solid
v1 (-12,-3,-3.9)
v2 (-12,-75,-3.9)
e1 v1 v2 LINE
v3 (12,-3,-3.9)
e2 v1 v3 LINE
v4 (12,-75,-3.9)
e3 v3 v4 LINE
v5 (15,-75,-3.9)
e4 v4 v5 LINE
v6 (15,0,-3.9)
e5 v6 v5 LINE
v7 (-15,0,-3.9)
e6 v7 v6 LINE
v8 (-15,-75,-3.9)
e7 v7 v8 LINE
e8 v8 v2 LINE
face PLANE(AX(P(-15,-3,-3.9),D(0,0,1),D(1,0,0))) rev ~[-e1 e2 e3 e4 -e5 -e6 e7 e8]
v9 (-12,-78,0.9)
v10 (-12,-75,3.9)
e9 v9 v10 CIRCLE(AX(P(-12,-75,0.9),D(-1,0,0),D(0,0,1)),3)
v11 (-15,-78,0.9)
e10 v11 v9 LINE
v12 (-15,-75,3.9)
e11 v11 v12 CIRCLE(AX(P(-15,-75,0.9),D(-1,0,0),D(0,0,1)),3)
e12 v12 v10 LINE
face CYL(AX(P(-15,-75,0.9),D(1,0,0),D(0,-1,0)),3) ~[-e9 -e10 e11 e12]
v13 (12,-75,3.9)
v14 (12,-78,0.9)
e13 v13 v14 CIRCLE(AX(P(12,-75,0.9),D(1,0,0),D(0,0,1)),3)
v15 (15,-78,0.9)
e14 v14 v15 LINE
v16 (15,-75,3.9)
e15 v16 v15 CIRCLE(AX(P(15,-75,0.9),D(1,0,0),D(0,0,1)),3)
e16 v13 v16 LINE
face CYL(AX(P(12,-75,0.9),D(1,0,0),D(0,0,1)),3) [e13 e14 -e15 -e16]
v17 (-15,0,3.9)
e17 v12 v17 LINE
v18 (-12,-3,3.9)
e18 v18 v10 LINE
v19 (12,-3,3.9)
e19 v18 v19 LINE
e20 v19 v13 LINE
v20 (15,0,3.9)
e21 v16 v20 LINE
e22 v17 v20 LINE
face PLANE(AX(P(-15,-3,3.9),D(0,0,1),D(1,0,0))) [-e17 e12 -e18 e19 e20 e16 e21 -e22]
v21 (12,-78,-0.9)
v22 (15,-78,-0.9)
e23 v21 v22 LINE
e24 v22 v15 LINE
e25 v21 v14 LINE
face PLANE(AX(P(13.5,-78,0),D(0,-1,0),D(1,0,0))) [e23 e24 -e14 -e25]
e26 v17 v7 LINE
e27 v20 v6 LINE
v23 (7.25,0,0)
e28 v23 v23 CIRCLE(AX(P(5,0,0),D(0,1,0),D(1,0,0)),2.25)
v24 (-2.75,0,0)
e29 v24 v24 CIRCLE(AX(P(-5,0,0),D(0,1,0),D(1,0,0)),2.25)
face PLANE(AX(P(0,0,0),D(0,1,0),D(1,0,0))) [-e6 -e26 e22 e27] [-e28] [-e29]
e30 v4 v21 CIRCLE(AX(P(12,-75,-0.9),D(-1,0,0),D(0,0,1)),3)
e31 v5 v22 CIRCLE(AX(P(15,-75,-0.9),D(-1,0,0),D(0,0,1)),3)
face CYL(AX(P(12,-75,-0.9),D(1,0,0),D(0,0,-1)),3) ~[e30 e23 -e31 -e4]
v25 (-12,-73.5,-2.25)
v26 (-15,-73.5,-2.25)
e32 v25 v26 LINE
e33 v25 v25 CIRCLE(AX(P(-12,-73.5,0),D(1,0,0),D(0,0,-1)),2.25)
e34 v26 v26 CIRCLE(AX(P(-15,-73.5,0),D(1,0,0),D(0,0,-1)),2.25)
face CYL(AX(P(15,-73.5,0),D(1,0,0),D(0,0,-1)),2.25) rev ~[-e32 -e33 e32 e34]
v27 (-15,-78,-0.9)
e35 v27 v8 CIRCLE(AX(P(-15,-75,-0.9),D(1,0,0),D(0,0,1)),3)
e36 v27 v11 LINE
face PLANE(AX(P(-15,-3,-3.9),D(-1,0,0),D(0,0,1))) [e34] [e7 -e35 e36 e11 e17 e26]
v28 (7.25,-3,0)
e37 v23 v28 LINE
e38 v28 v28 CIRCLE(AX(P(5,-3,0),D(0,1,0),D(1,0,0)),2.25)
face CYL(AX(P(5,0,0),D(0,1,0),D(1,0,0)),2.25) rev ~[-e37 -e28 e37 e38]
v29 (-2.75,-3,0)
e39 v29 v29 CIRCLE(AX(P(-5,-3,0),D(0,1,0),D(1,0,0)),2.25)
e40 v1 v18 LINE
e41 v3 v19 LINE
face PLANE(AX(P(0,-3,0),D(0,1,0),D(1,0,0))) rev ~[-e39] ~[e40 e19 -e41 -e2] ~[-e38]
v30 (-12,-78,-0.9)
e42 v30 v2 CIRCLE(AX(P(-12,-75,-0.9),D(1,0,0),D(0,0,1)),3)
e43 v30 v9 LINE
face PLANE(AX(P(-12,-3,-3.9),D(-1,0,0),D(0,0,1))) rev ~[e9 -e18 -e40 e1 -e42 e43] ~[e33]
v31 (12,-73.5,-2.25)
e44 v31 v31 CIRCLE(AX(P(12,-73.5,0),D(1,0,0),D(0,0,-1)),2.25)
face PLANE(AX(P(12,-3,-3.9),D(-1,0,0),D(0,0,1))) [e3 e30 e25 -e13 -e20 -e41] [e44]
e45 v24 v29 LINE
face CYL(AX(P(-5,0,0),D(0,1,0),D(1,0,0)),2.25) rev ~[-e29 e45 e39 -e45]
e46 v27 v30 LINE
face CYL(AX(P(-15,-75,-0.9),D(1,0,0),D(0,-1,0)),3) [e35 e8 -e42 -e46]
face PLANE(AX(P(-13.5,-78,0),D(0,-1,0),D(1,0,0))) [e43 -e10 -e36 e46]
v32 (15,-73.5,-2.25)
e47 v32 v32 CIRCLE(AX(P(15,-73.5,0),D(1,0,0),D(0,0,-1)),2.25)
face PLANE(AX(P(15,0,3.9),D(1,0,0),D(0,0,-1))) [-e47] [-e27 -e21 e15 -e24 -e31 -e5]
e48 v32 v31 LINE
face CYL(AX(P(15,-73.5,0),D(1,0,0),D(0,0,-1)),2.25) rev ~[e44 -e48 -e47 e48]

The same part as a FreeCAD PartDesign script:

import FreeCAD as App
import Part
import Sketcher

V = App.Vector
Q = App.Units.Quantity


def edges_at(feature, points):
    """Names of the edges that pass closest to the given points."""
    edges = feature.Shape.Edges
    near = lambda p: min(range(len(edges)), key=lambda i: edges[i].distToShape(Part.Vertex(*p))[0])
    return sorted({f"Edge{near(p) + 1}" for p in points})

doc = App.newDocument("Part")
params = doc.addObject("Spreadsheet::Sheet", "Params")
for row, (alias, value) in enumerate([
    ("sketch1_width", "30 mm"),
    ("sketch1_height", "7.8 mm"),
    ("pad1_length", "3 mm"),
    ("sketch2_diameter", "4.5 mm"),
    ("sketch3_diameter", "4.5 mm"),
    ("sketch4_width", "3 mm"),
    ("sketch4_height", "7.8 mm"),
    ("pad2_length", "75 mm"),
    ("sketch5_diameter", "4.5 mm"),
    ("fillet_radius", "3 mm"),
], start=1):
    params.set(f"A{row}", alias)
    params.set(f"B{row}", "=" + value)
    params.setAlias(f"B{row}", alias)

body = doc.addObject("PartDesign::Body", "Body")

# Sketch on XZ plane
sketch1 = body.newObject("Sketcher::SketchObject", "Sketch")
sketch1.AttachmentSupport = (doc.getObject("XZ_Plane"), [""])
sketch1.MapMode = "FlatFace"
sketch1.addGeometry(Part.LineSegment(V(-15, -4, 0), V(-15, 4, 0)), False)
sketch1.addGeometry(Part.LineSegment(V(-15, 4, 0), V(15, 4, 0)), False)
sketch1.addGeometry(Part.LineSegment(V(15, 4, 0), V(15, -4, 0)), False)
sketch1.addGeometry(Part.LineSegment(V(15, -4, 0), V(-15, -4, 0)), False)
sketch1.addConstraint(Sketcher.Constraint("Coincident", 0, 2, 1, 1))
sketch1.addConstraint(Sketcher.Constraint("Coincident", 1, 2, 2, 1))
sketch1.addConstraint(Sketcher.Constraint("Coincident", 2, 2, 3, 1))
sketch1.addConstraint(Sketcher.Constraint("Coincident", 3, 2, 0, 1))
sketch1.addConstraint(Sketcher.Constraint("Vertical", 0))
sketch1.addConstraint(Sketcher.Constraint("Horizontal", 1))
sketch1.addConstraint(Sketcher.Constraint("Vertical", 2))
sketch1.addConstraint(Sketcher.Constraint("Horizontal", 3))
sketch1.addConstraint(Sketcher.Constraint("Symmetric", 0, 2, 2, 2, -1, 1))
sketch1.addConstraint(Sketcher.Constraint("DistanceX", 1, 1, 1, 2, Q("30 mm")))
sketch1.addConstraint(Sketcher.Constraint("DistanceY", 0, 1, 0, 2, Q("7.8 mm")))
sketch1.setExpression("Constraints[9]", "Params.sketch1_width")
sketch1.setExpression("Constraints[10]", "Params.sketch1_height")
pad1 = body.newObject("PartDesign::Pad", "Pad")
pad1.Profile = sketch1
pad1.setExpression("Length", "Params.pad1_length")

# Sketch on XZ plane
sketch2 = body.newObject("Sketcher::SketchObject", "Sketch001")
sketch2.AttachmentSupport = (doc.getObject("XZ_Plane"), [""])
sketch2.MapMode = "FlatFace"
sketch2.addGeometry(Part.Circle(V(-5, 0, 0), V(0, 0, 1), 2.2), False)
sketch2.addConstraint(Sketcher.Constraint("PointOnObject", 0, 3, -1))
sketch2.addConstraint(Sketcher.Constraint("Diameter", 0, Q("4.5 mm")))
sketch2.addConstraint(Sketcher.Constraint("DistanceX", 0, 3, -1, 1, Q("5 mm")))
sketch2.setExpression("Constraints[1]", "Params.sketch2_diameter")
pocket1 = body.newObject("PartDesign::Pocket", "Pocket")
pocket1.Profile = sketch2
pocket1.Type = "UpToFirst"
pocket1.Reversed = True

# Sketch on XZ plane
sketch3 = body.newObject("Sketcher::SketchObject", "Sketch002")
sketch3.AttachmentSupport = (doc.getObject("XZ_Plane"), [""])
sketch3.MapMode = "FlatFace"
sketch3.addGeometry(Part.Circle(V(5, 0, 0), V(0, 0, 1), 2.2), False)
sketch3.addConstraint(Sketcher.Constraint("PointOnObject", 0, 3, -1))
sketch3.addConstraint(Sketcher.Constraint("Diameter", 0, Q("4.5 mm")))
sketch3.addConstraint(Sketcher.Constraint("DistanceX", -1, 1, 0, 3, Q("5 mm")))
sketch3.setExpression("Constraints[1]", "Params.sketch3_diameter")
pocket2 = body.newObject("PartDesign::Pocket", "Pocket001")
pocket2.Profile = sketch3
pocket2.Type = "UpToFirst"
pocket2.Reversed = True

# Sketch on XZ plane
sketch4 = body.newObject("Sketcher::SketchObject", "Sketch003")
sketch4.AttachmentSupport = (doc.getObject("XZ_Plane"), [""])
sketch4.MapMode = "FlatFace"
sketch4.AttachmentOffset = App.Placement(V(0, 0, 3), App.Rotation())
sketch4.addGeometry(Part.LineSegment(V(-15, 3.9, 0), V(-15, -3.9, 0)), False)
sketch4.addGeometry(Part.LineSegment(V(-15, -3.9, 0), V(-12, -3.9, 0)), False)
sketch4.addGeometry(Part.LineSegment(V(-12, -3.9, 0), V(-12, 3.9, 0)), False)
sketch4.addGeometry(Part.LineSegment(V(-12, 3.9, 0), V(-15, 3.9, 0)), False)
sketch4.addGeometry(Part.LineSegment(V(12, 3.9, 0), V(12, -3.9, 0)), False)
sketch4.addGeometry(Part.LineSegment(V(12, -3.9, 0), V(15, -3.9, 0)), False)
sketch4.addGeometry(Part.LineSegment(V(15, -3.9, 0), V(15, 3.9, 0)), False)
sketch4.addGeometry(Part.LineSegment(V(15, 3.9, 0), V(12, 3.9, 0)), False)
sketch4.addConstraint(Sketcher.Constraint("Coincident", 0, 2, 1, 1))
sketch4.addConstraint(Sketcher.Constraint("Coincident", 1, 2, 2, 1))
sketch4.addConstraint(Sketcher.Constraint("Coincident", 2, 2, 3, 1))
sketch4.addConstraint(Sketcher.Constraint("Coincident", 3, 2, 0, 1))
sketch4.addConstraint(Sketcher.Constraint("Coincident", 4, 2, 5, 1))
sketch4.addConstraint(Sketcher.Constraint("Coincident", 5, 2, 6, 1))
sketch4.addConstraint(Sketcher.Constraint("Coincident", 6, 2, 7, 1))
sketch4.addConstraint(Sketcher.Constraint("Coincident", 7, 2, 4, 1))
sketch4.addConstraint(Sketcher.Constraint("Vertical", 0))
sketch4.addConstraint(Sketcher.Constraint("Horizontal", 1))
sketch4.addConstraint(Sketcher.Constraint("Vertical", 2))
sketch4.addConstraint(Sketcher.Constraint("Horizontal", 3))
sketch4.addConstraint(Sketcher.Constraint("Vertical", 4))
sketch4.addConstraint(Sketcher.Constraint("Horizontal", 5))
sketch4.addConstraint(Sketcher.Constraint("Vertical", 6))
sketch4.addConstraint(Sketcher.Constraint("Horizontal", 7))
sketch4.addConstraint(Sketcher.Constraint("Symmetric", 2, 2, 4, 2, -1, 1))
sketch4.addConstraint(Sketcher.Constraint("Symmetric", 0, 2, 6, 2, -1, 1))
sketch4.addConstraint(Sketcher.Constraint("Horizontal", 1, 2, 4, 2))
sketch4.addConstraint(Sketcher.Constraint("DistanceX", 1, 1, 1, 2, Q("3 mm")))
sketch4.addConstraint(Sketcher.Constraint("DistanceY", 0, 2, 0, 1, Q("7.8 mm")))
sketch4.addConstraint(Sketcher.Constraint("DistanceX", 0, 2, -1, 1, Q("15 mm")))
sketch4.setExpression("Constraints[19]", "Params.sketch4_width")
sketch4.setExpression("Constraints[20]", "Params.sketch4_height")
pad2 = body.newObject("PartDesign::Pad", "Pad001")
pad2.Profile = sketch4
pad2.setExpression("Length", "Params.pad2_length")

# Sketch on YZ plane
sketch5 = body.newObject("Sketcher::SketchObject", "Sketch004")
sketch5.AttachmentSupport = (doc.getObject("YZ_Plane"), [""])
sketch5.MapMode = "FlatFace"
sketch5.AttachmentOffset = App.Placement(V(0, 0, 15), App.Rotation())
sketch5.addGeometry(Part.Circle(V(-73.5, 0, 0), V(0, 0, 1), 2.2), False)
sketch5.addConstraint(Sketcher.Constraint("PointOnObject", 0, 3, -1))
sketch5.addConstraint(Sketcher.Constraint("Diameter", 0, Q("4.5 mm")))
sketch5.addConstraint(Sketcher.Constraint("DistanceX", 0, 3, -1, 1, Q("73.5 mm")))
sketch5.setExpression("Constraints[1]", "Params.sketch5_diameter")
pocket3 = body.newObject("PartDesign::Pocket", "Pocket002")
pocket3.Profile = sketch5
pocket3.Type = "ThroughAll"
pocket3.Midplane = True
doc.recompute()

fillet = body.newObject("PartDesign::Fillet", "Fillet")
fillet.Base = (pocket3, edges_at(pocket3, [
    (-13.5, -78, -3.9),
    (-13.5, -78, 3.9),
    (13.5, -78, 3.9),
    (13.5, -78, -3.9),
]))
fillet.setExpression("Radius", "Params.fillet_radius")

doc.recompute()
